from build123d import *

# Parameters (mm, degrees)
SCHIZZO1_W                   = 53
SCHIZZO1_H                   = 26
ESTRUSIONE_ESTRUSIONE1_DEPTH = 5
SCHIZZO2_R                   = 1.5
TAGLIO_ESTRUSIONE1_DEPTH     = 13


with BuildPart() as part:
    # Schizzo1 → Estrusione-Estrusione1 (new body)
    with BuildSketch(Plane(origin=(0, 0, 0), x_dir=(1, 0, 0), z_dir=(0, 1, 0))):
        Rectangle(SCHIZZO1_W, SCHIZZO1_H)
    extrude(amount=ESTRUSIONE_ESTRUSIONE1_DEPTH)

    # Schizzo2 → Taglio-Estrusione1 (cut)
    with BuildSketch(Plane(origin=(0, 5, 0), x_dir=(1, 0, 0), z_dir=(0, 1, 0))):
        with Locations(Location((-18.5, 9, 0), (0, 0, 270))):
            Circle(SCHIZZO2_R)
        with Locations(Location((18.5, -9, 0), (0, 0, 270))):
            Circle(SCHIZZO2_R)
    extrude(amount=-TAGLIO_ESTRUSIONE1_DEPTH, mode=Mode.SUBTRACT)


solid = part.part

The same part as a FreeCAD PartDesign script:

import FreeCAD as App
import Part
import Sketcher
from FreeCAD import Vector
Q = App.Units.Quantity

doc = App.newDocument("Part")
body = doc.addObject("PartDesign::Body", "Body")

# Sketch on XZ plane
sketch1 = doc.addObject("Sketcher::SketchObject", "Sketch")
body.addObject(sketch1)
sketch1.AttachmentSupport = (doc.XZ_Plane, [""])
sketch1.MapMode = "FlatFace"
sketch1.addGeometry([
    Part.LineSegment(Vector(-26, -13, 0), Vector(-26, 13, 0)),
    Part.LineSegment(Vector(-26, 13, 0), Vector(26, 13, 0)),
    Part.LineSegment(Vector(26, 13, 0), Vector(26, -13, 0)),
    Part.LineSegment(Vector(26, -13, 0), Vector(-26, -13, 0)),
], False)
sketch1.addConstraint([
    Sketcher.Constraint("Coincident", 0, 2, 1, 1),
    Sketcher.Constraint("Coincident", 1, 2, 2, 1),
    Sketcher.Constraint("Coincident", 2, 2, 3, 1),
    Sketcher.Constraint("Coincident", 3, 2, 0, 1),
    Sketcher.Constraint("Vertical", 0),
    Sketcher.Constraint("Horizontal", 1),
    Sketcher.Constraint("Vertical", 2),
    Sketcher.Constraint("Horizontal", 3),
    Sketcher.Constraint("Symmetric", 0, 2, 2, 2, -1, 1),
    Sketcher.Constraint("DistanceX", 1, 1, 1, 2, Q("53 mm")),
    Sketcher.Constraint("DistanceY", 0, 1, 0, 2, Q("26 mm")),
])
pad1 = doc.addObject("PartDesign::Pad", "Pad")
body.addObject(pad1)
pad1.Profile = sketch1
pad1.Length = 5
pad1.Reversed = True

# Sketch on XZ plane
sketch2 = doc.addObject("Sketcher::SketchObject", "Sketch001")
body.addObject(sketch2)
sketch2.AttachmentSupport = (doc.XZ_Plane, [""])
sketch2.MapMode = "FlatFace"
sketch2.AttachmentOffset = App.Placement(Vector(0, 0, -5), App.Rotation())
sketch2.addGeometry([
    Part.Circle(Vector(-18.5, -9, 0), Vector(0, 0, 1), 1.5),
    Part.Circle(Vector(18.5, 9, 0), Vector(0, 0, 1), 1.5),
], False)
sketch2.addConstraint([
    Sketcher.Constraint("Equal", 0, 1),
    Sketcher.Constraint("Symmetric", 0, 3, 1, 3, -1, 1),
    Sketcher.Constraint("Diameter", 0, Q("3 mm")),
    Sketcher.Constraint("DistanceY", 0, 3, -1, 1, Q("9 mm")),
    Sketcher.Constraint("DistanceX", 0, 3, 1, 3, Q("37 mm")),
])
pocket1 = doc.addObject("PartDesign::Pocket", "Pocket")
body.addObject(pocket1)
pocket1.Profile = sketch2
pocket1.Length = 13
pocket1.Reversed = True

doc.recompute()
